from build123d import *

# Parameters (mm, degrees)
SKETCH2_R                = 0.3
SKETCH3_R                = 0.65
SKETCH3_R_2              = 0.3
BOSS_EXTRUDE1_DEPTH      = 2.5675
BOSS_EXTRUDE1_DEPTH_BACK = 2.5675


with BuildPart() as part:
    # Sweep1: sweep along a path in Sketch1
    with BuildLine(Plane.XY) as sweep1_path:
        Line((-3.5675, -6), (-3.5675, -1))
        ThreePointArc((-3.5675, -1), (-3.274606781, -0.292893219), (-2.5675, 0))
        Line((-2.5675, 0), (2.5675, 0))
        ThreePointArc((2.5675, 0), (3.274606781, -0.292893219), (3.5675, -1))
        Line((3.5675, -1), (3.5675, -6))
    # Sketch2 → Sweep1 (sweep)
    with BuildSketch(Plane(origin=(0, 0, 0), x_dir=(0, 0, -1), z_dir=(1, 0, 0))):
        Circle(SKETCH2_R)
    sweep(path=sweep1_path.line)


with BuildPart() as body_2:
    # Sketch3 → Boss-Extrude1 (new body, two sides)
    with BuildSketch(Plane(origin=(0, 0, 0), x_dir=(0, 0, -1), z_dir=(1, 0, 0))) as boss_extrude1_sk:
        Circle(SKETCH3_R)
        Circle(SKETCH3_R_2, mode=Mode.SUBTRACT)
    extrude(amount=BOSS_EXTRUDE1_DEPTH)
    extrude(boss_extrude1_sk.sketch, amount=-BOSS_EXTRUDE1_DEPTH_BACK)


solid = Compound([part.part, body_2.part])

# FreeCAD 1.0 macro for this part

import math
import FreeCAD as App
import Part
import Sketcher
from FreeCAD import Vector
Q = App.Units.Quantity

doc = App.newDocument("Part")
body = doc.addObject("PartDesign::Body", "Body")

# Sketch on YZ plane
sketch1 = body.newObject("Sketcher::SketchObject", "Sketch")
sketch1.AttachmentSupport = (doc.getObject("YZ_Plane"), [""])
sketch1.MapMode = "FlatFace"
sketch1.addGeometry(Part.Circle(Vector(0, 0, 0), Vector(0, 0, 1), 0.3), False)
sketch1.addConstraint([
    Sketcher.Constraint("Coincident", 0, 3, -1, 1),
    Sketcher.Constraint("Diameter", 0, Q("0.6 mm")),
])

# Sketch on XY plane
sketch2 = body.newObject("Sketcher::SketchObject", "Sketch001")
sketch2.AttachmentSupport = (doc.getObject("XY_Plane"), [""])
sketch2.MapMode = "FlatFace"
sketch2.addGeometry([
    Part.LineSegment(Vector(-3.6, -6, 0), Vector(-3.6, -1, 0)),  # 0
    Part.ArcOfCircle(Part.Circle(Vector(-2.6, -1, 0), Vector(0, 0, 1), 1), math.radians(90), math.radians(180)),  # 1
    Part.LineSegment(Vector(-2.6, 0, 0), Vector(2.6, 0, 0)),  # 2
    Part.ArcOfCircle(Part.Circle(Vector(2.6, -1, 0), Vector(0, 0, 1), 1), math.radians(0), math.radians(90)),  # 3
    Part.LineSegment(Vector(3.6, -1, 0), Vector(3.6, -6, 0)),  # 4
], False)
sketch2.addConstraint([
    Sketcher.Constraint("Tangent", 0, 2, 1, 2),
    Sketcher.Constraint("Tangent", 1, 1, 2, 1),
    Sketcher.Constraint("Tangent", 2, 2, 3, 2),
    Sketcher.Constraint("Tangent", 3, 1, 4, 1),
    Sketcher.Constraint("Vertical", 0),
    Sketcher.Constraint("Horizontal", 2),
    Sketcher.Constraint("Vertical", 4),
    Sketcher.Constraint("Equal", 1, 3),
    Sketcher.Constraint("Symmetric", 1, 1, 2, 2, -1, 1),
    Sketcher.Constraint("Horizontal", 0, 1, 4, 2),
    Sketcher.Constraint("Radius", 1, Q("1 mm")),
    Sketcher.Constraint("DistanceY", 0, 1, 0, 2, Q("5 mm")),
    Sketcher.Constraint("DistanceX", 2, 1, 2, 2, Q("5.135 mm")),
])
doc.recompute()

additivepipe = body.newObject("PartDesign::AdditivePipe", "AdditivePipe")
additivepipe.Profile = sketch1
additivepipe.Spine = (sketch2, ["Edge1", "Edge2", "Edge3", "Edge4", "Edge5"])
body2 = doc.addObject("PartDesign::Body", "Body001")

# Sketch on YZ plane
sketch3 = body2.newObject("Sketcher::SketchObject", "Sketch002")
sketch3.AttachmentSupport = (doc.getObject("YZ_Plane001"), [""])
sketch3.MapMode = "FlatFace"
sketch3.addGeometry([
    Part.Circle(Vector(0, 0, 0), Vector(0, 0, 1), 0.65),
    Part.Circle(Vector(0, 0, 0), Vector(0, 0, 1), 0.3),
], False)
sketch3.addConstraint([
    Sketcher.Constraint("Coincident", 0, 3, -1, 1),
    Sketcher.Constraint("Coincident", 1, 3, -1, 1),
    Sketcher.Constraint("Diameter", 0, Q("1.3 mm")),
    Sketcher.Constraint("Diameter", 1, Q("0.6 mm")),
])
pad1 = body2.newObject("PartDesign::Pad", "Pad")
pad1.Profile = sketch3
pad1.Type = "TwoLengths"
pad1.Length = 2.5675
pad1.Length2 = 2.5675

doc.recompute()
